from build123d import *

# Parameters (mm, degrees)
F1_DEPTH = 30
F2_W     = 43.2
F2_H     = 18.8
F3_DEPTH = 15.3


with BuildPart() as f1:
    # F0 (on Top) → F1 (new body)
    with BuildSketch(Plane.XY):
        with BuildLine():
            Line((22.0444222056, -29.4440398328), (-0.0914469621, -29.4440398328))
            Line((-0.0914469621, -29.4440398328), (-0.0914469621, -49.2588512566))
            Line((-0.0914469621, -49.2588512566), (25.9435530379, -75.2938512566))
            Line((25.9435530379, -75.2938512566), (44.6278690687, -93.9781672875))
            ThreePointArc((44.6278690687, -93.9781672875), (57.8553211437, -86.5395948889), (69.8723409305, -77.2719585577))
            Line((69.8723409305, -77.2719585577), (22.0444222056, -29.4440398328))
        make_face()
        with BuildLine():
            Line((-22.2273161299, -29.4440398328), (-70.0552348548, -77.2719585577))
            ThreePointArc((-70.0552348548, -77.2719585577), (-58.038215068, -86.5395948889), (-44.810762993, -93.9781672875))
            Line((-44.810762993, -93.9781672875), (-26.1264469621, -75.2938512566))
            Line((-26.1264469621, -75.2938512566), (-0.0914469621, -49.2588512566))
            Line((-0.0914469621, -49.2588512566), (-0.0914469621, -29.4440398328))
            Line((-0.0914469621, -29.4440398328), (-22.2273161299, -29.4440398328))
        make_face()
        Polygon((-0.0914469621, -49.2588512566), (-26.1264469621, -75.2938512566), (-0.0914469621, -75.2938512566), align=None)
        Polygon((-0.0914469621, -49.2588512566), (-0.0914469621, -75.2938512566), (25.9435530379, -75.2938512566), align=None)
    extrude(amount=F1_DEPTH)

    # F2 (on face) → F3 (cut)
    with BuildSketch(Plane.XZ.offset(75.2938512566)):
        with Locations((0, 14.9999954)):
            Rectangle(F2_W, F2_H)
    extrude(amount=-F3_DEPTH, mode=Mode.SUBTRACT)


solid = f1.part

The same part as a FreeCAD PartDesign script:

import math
import FreeCAD as App
import Part
import Sketcher
from FreeCAD import Vector
Q = App.Units.Quantity

doc = App.newDocument("Part")
body = doc.addObject("PartDesign::Body", "Body")

# Sketch on XY plane
sketch1 = body.newObject("Sketcher::SketchObject", "Sketch")
sketch1.AttachmentSupport = (doc.getObject("XY_Plane"), [""])
sketch1.MapMode = "FlatFace"
sketch1.addGeometry([
    Part.LineSegment(Vector(22.044422, -29.44404, 0), Vector(-22.227316, -29.44404, 0)),  # 0
    Part.LineSegment(Vector(-22.227316, -29.44404, 0), Vector(-70.055235, -77.271959, 0)),  # 1
    Part.ArcOfCircle(Part.Circle(Vector(-0.091447, 1.022795, 0), Vector(0, 0, 1), 105), math.radians(-131.78381), math.radians(-115.207533)),  # 2
    Part.LineSegment(Vector(-44.810763, -93.978167, 0), Vector(-26.126447, -75.293851, 0)),  # 3
    Part.LineSegment(Vector(-26.126447, -75.293851, 0), Vector(25.943553, -75.293851, 0)),  # 4
    Part.LineSegment(Vector(25.943553, -75.293851, 0), Vector(44.627869, -93.978167, 0)),  # 5
    Part.ArcOfCircle(Part.Circle(Vector(-0.091447, 1.022795, 0), Vector(0, 0, 1), 105), math.radians(-64.792467), math.radians(-48.21619)),  # 6
    Part.LineSegment(Vector(69.872341, -77.271959, 0), Vector(22.044422, -29.44404, 0)),  # 7
], False)
sketch1.addConstraint([
    Sketcher.Constraint("Coincident", 0, 2, 1, 1),
    Sketcher.Constraint("Coincident", 1, 2, 2, 1),
    Sketcher.Constraint("Coincident", 2, 2, 3, 1),
    Sketcher.Constraint("Coincident", 3, 2, 4, 1),
    Sketcher.Constraint("Coincident", 4, 2, 5, 1),
    Sketcher.Constraint("Coincident", 5, 2, 6, 1),
    Sketcher.Constraint("Coincident", 6, 2, 7, 1),
    Sketcher.Constraint("Coincident", 7, 2, 0, 1),
    Sketcher.Constraint("Horizontal", 0),
    Sketcher.Constraint("Horizontal", 4),
    Sketcher.Constraint("Coincident", 6, 3, 2, 3),
    Sketcher.Constraint("Equal", 2, 6),
    Sketcher.Constraint("Parallel", 1, 3),
    Sketcher.Constraint("Perpendicular", 3, 5),
    Sketcher.Constraint("Parallel", 5, 7),
    Sketcher.Constraint("Horizontal", 2, 2, 5, 2),
    Sketcher.Constraint("Horizontal", 1, 2, 6, 2),
    Sketcher.Constraint("Equal", 3, 5),
    Sketcher.Constraint("Radius", 2, Q("105 mm")),
    Sketcher.Constraint("DistanceX", 4, 1, 4, 2, Q("52.07 mm")),
    Sketcher.Constraint("DistanceX", 0, 2, 0, 1, Q("44.271738 mm")),
    Sketcher.Constraint("Distance", 1, Q("67.638891 mm")),
    Sketcher.Constraint("DistanceY", 0, 2, -1, 1, Q("29.44404 mm")),
    Sketcher.Constraint("DistanceY", 3, 2, -1, 1, Q("75.293851 mm")),
    Sketcher.Constraint("DistanceX", -1, 1, 5, 2, Q("44.627869 mm")),
])
pad1 = body.newObject("PartDesign::Pad", "Pad")
pad1.Profile = sketch1
pad1.Length = 30

# Sketch on XZ plane
sketch2 = body.newObject("Sketcher::SketchObject", "Sketch001")
sketch2.AttachmentSupport = (doc.getObject("XZ_Plane"), [""])
sketch2.MapMode = "FlatFace"
sketch2.AttachmentOffset = App.Placement(Vector(0, 0, 75.293851), App.Rotation())
sketch2.addGeometry([
    Part.LineSegment(Vector(-21.6, 24.399995, 0), Vector(-21.6, 5.599995, 0)),
    Part.LineSegment(Vector(-21.6, 5.599995, 0), Vector(21.6, 5.599995, 0)),
    Part.LineSegment(Vector(21.6, 5.599995, 0), Vector(21.6, 24.399995, 0)),
    Part.LineSegment(Vector(21.6, 24.399995, 0), Vector(-21.6, 24.399995, 0)),
], False)
sketch2.addConstraint([
    Sketcher.Constraint("Coincident", 0, 2, 1, 1),
    Sketcher.Constraint("Coincident", 1, 2, 2, 1),
    Sketcher.Constraint("Coincident", 2, 2, 3, 1),
    Sketcher.Constraint("Coincident", 3, 2, 0, 1),
    Sketcher.Constraint("Vertical", 0),
    Sketcher.Constraint("Horizontal", 1),
    Sketcher.Constraint("Vertical", 2),
    Sketcher.Constraint("Horizontal", 3),
    Sketcher.Constraint("DistanceX", 1, 1, 1, 2, Q("43.2 mm")),
    Sketcher.Constraint("DistanceY", 0, 2, 0, 1, Q("18.8 mm")),
    Sketcher.Constraint("DistanceX", 0, 2, -1, 1, Q("21.6 mm")),
    Sketcher.Constraint("DistanceY", -1, 1, 0, 2, Q("5.599995 mm")),
])
pocket1 = body.newObject("PartDesign::Pocket", "Pocket")
pocket1.Profile = sketch2
pocket1.Length = 15.3

doc.recompute()
